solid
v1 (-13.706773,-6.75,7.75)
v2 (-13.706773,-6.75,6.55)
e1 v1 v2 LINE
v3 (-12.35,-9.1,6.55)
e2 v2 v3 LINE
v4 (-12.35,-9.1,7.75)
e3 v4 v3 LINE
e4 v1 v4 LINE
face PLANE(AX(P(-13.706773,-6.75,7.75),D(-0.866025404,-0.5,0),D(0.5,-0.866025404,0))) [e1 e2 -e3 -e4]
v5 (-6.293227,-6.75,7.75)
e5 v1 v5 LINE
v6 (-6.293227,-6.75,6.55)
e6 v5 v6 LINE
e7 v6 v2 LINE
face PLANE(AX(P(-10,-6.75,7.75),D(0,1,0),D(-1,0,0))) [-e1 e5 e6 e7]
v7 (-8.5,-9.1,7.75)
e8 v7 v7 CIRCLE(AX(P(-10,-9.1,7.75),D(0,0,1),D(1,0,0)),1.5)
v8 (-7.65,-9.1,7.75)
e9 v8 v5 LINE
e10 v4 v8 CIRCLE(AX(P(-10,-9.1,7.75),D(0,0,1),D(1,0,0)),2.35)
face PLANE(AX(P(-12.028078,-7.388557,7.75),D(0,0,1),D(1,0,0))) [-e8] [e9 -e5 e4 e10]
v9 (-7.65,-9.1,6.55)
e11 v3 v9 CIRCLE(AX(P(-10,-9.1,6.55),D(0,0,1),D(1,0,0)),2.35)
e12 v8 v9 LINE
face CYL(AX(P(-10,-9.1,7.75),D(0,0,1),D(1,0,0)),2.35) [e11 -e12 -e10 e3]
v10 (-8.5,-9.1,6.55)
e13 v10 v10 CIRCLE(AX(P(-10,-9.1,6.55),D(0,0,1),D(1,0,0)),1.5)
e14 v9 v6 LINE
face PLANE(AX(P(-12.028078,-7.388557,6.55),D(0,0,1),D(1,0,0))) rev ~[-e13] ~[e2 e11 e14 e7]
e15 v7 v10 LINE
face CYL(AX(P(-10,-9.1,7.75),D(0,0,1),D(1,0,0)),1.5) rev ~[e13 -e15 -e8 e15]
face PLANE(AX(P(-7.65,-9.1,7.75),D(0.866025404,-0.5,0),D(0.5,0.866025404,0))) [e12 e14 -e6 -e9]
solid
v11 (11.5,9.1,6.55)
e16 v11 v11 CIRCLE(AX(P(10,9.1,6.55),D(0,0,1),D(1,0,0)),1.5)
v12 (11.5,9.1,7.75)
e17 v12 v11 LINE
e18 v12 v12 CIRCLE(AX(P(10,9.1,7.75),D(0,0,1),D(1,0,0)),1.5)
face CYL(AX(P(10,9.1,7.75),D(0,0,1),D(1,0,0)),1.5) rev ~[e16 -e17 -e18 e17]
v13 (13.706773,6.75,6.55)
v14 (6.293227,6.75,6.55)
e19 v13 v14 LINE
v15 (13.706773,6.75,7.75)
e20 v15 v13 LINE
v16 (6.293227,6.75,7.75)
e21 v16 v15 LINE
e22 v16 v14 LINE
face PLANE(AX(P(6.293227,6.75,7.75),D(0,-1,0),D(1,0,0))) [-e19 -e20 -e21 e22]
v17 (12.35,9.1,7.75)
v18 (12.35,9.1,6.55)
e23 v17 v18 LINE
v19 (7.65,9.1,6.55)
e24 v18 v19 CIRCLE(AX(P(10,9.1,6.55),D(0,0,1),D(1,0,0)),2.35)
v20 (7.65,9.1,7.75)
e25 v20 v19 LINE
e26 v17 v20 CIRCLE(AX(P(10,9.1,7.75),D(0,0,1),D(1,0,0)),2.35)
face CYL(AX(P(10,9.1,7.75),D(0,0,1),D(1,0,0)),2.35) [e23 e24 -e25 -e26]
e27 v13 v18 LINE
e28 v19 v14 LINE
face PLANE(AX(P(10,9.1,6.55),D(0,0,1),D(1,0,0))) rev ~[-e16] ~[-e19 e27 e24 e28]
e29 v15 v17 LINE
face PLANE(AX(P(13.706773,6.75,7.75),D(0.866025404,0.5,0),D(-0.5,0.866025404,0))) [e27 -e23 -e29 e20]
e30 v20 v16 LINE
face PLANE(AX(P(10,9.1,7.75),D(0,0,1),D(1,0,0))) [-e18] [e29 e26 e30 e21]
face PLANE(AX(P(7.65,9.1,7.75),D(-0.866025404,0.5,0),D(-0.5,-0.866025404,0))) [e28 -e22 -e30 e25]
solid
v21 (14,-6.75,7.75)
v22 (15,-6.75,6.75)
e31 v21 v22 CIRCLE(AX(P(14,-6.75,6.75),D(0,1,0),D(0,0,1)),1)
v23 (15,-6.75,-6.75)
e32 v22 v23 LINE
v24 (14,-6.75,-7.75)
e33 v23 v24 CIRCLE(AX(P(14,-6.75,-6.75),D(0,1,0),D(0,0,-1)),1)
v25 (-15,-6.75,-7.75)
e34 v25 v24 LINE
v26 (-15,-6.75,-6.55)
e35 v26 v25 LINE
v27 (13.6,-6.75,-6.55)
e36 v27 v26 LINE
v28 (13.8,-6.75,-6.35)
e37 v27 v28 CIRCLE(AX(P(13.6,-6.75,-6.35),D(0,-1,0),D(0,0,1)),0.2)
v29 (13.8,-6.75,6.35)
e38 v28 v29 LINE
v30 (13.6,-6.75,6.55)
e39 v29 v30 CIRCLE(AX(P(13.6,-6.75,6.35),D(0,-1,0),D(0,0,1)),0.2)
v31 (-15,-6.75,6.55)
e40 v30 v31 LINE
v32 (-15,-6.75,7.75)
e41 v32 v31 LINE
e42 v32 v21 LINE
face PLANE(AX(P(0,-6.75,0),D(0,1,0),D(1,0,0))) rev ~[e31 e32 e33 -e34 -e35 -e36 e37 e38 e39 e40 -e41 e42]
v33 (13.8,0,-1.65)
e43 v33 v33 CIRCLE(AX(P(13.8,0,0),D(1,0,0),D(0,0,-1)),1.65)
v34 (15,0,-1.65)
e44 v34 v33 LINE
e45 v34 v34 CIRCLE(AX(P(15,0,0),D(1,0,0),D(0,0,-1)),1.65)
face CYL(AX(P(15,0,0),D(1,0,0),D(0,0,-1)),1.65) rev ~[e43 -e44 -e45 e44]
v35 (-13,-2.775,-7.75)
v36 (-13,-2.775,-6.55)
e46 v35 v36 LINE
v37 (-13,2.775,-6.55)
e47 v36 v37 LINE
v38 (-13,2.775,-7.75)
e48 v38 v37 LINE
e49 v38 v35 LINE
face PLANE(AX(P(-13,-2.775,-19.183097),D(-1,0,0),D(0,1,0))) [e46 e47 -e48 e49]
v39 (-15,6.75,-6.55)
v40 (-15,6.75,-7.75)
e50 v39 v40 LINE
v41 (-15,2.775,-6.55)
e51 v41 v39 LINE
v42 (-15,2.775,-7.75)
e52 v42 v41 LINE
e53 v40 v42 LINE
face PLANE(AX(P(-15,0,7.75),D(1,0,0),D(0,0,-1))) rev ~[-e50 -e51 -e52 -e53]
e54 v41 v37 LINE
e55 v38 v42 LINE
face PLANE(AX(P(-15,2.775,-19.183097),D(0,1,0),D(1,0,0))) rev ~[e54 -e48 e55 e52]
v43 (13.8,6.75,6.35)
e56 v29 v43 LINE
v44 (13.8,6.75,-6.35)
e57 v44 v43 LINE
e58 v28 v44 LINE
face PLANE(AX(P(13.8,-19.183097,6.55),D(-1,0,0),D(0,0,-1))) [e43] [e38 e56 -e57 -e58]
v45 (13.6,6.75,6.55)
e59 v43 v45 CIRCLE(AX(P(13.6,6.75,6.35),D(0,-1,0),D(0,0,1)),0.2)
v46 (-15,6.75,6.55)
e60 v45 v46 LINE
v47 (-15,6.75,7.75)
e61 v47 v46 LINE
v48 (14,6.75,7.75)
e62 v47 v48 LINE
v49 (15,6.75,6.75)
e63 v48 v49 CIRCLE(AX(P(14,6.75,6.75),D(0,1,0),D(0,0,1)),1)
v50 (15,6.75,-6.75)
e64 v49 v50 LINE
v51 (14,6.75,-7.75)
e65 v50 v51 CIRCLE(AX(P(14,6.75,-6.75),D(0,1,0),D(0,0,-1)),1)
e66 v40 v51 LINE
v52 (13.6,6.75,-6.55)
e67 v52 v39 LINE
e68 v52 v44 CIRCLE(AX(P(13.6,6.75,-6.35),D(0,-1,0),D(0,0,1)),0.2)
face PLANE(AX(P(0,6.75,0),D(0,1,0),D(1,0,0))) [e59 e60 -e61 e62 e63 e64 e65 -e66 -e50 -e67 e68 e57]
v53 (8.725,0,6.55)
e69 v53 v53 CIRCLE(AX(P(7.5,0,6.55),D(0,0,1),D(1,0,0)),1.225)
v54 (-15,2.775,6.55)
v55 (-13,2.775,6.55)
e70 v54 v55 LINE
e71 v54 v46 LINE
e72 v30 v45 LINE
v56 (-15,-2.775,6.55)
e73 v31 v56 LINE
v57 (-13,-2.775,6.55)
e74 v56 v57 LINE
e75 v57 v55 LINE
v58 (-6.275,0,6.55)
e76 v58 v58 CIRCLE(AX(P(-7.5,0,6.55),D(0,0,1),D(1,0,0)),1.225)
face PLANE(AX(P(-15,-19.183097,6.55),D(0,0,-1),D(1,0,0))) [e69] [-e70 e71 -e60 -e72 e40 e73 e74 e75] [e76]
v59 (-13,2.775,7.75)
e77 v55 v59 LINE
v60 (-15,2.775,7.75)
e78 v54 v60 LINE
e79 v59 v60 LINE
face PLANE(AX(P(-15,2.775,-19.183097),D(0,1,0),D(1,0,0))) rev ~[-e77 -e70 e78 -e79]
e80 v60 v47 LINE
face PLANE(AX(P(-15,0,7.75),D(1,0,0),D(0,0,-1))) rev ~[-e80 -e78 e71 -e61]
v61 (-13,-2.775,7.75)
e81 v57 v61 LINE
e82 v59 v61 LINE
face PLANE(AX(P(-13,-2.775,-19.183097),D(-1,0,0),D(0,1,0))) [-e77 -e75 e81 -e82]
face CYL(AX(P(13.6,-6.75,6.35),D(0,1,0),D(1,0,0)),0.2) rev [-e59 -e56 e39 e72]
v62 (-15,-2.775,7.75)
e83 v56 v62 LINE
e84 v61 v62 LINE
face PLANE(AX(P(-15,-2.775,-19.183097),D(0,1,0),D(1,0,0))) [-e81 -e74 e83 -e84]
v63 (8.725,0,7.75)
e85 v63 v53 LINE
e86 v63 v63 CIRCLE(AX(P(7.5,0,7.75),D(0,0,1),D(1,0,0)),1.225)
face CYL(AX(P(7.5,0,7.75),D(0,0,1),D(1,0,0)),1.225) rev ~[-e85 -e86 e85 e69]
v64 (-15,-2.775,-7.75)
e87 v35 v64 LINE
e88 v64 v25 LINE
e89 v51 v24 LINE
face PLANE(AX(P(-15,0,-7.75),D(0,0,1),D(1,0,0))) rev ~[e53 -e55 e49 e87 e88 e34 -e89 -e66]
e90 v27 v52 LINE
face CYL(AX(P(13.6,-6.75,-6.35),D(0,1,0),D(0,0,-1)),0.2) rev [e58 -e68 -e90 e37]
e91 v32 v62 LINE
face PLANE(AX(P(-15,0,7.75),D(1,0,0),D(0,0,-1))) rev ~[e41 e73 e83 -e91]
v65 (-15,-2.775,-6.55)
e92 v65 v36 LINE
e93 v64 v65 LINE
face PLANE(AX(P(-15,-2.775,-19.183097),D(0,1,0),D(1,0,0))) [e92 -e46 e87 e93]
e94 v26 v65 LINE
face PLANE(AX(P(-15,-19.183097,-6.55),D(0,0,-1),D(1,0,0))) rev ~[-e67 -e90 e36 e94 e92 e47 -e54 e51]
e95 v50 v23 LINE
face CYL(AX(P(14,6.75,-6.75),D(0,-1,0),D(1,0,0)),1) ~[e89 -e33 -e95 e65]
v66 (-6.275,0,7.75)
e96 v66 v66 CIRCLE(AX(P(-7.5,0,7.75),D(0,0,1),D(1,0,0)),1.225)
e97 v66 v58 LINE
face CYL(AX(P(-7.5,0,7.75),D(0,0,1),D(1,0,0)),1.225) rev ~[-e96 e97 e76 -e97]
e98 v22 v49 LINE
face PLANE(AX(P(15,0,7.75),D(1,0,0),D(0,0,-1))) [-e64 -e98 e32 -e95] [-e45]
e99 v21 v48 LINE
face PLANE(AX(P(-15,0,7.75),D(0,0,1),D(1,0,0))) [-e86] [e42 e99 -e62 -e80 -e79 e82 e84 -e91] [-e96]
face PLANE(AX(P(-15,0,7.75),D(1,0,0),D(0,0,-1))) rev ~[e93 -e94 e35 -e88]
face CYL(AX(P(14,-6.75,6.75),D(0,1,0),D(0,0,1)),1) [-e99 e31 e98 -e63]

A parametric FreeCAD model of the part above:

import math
import FreeCAD as App
import Part
import Sketcher
Q = App.Units.Quantity


def edges_at(feature, points):
    """Names of the edges that pass closest to the given points."""
    edges = feature.Shape.Edges
    near = lambda p: min(range(len(edges)), key=lambda i: edges[i].distToShape(Part.Vertex(*p))[0])
    return sorted({f"Edge{near(p) + 1}" for p in points})


def add_polygon(sketch, points):
    """Adds a closed chain of lines whose ends are joined by coincident constraints."""
    first, n = sketch.GeometryCount, len(points)
    for a, b in zip(points, points[1:] + points[:1]):
        sketch.addGeometry(Part.LineSegment(App.Vector(*a, 0), App.Vector(*b, 0)), False)
    for i in range(n):
        sketch.addConstraint(Sketcher.Constraint("Coincident", first + i, 2, first + (i + 1) % n, 1))

doc = App.newDocument("Part")
body = doc.addObject("PartDesign::Body", "Body")

# Sketch on XZ plane
sketch1 = body.newObject("Sketcher::SketchObject", "Sketch")
sketch1.AttachmentSupport = (doc.getObject("XZ_Plane"), [""])
sketch1.MapMode = "FlatFace"
add_polygon(sketch1, [(-15, -8), (-15, 8), (15, 8), (15, -8)])  # lines 0-3
sketch1.addConstraint([
    Sketcher.Constraint("Vertical", 0),
    Sketcher.Constraint("Horizontal", 1),
    Sketcher.Constraint("Vertical", 2),
    Sketcher.Constraint("Horizontal", 3),
    Sketcher.Constraint("Symmetric", 0, 2, 2, 2, -1, 1),
    Sketcher.Constraint("DistanceX", 1, 1, 1, 2, 30.0),
    Sketcher.Constraint("DistanceY", 0, 1, 0, 2, 15.5),
])
pad1 = body.newObject("PartDesign::Pad", "Pad")
pad1.Profile = sketch1
pad1.Length = 13.5
pad1.Midplane = True

# Sketch on XZ plane
sketch2 = body.newObject("Sketcher::SketchObject", "Sketch001")
sketch2.AttachmentSupport = (doc.getObject("XZ_Plane"), [""])
sketch2.MapMode = "FlatFace"
add_polygon(sketch2, [(-15, -7), (-15, 7), (14, 7), (14, -7)])  # lines 0-3
sketch2.addConstraint([
    Sketcher.Constraint("Vertical", 0),
    Sketcher.Constraint("Horizontal", 1),
    Sketcher.Constraint("Vertical", 2),
    Sketcher.Constraint("Horizontal", 3),
    Sketcher.Constraint("DistanceX", 1, 1, 1, 2, 28.8),
    Sketcher.Constraint("DistanceY", 0, 1, 0, 2, 13.1),
    Sketcher.Constraint("DistanceX", 0, 2, -1, 1, 15.0),
    Sketcher.Constraint("DistanceY", -1, 1, 0, 2, 6.55),
])
pocket1 = body.newObject("PartDesign::Pocket", "Pocket")
pocket1.Profile = sketch2
pocket1.Type = "ThroughAll"
pocket1.Midplane = True

# Sketch on YZ plane
sketch3 = body.newObject("Sketcher::SketchObject", "Sketch002")
sketch3.AttachmentSupport = (doc.getObject("YZ_Plane"), [""])
sketch3.MapMode = "FlatFace"
sketch3.AttachmentOffset = App.Placement(App.Vector(0, 0, 15), App.Rotation())
sketch3.addGeometry(Part.Circle(App.Vector(0, 0, 0), App.Vector(0, 0, 1), 1.6), False)
sketch3.addConstraint([
    Sketcher.Constraint("Coincident", 0, 3, -1, 1),
    Sketcher.Constraint("Diameter", 0, 3.3),
])
pocket2 = body.newObject("PartDesign::Pocket", "Pocket001")
pocket2.Profile = sketch3
pocket2.Type = "UpToFirst"
doc.recompute()

fillet = body.newObject("PartDesign::Fillet", "Fillet")
fillet.Base = (pocket2, edges_at(pocket2, [(15, 0, -7.75), (15, 0, 7.75)]))
fillet.Radius = 1
doc.recompute()

fillet2 = body.newObject("PartDesign::Fillet", "Fillet001")
fillet2.Base = (fillet, edges_at(fillet, [(13.8, 0, -6.55), (13.8, 0, 6.55)]))
fillet2.Radius = 0.2

# Sketch on XY plane
sketch4 = body.newObject("Sketcher::SketchObject", "Sketch003")
sketch4.AttachmentSupport = (doc.getObject("XY_Plane"), [""])
sketch4.MapMode = "FlatFace"
add_polygon(sketch4, [(-15, 2.8), (-15, -2.8), (-13, -2.8), (-13, 2.8)])  # lines 0-3
sketch4.addConstraint([
    Sketcher.Constraint("Vertical", 0),
    Sketcher.Constraint("Horizontal", 1),
    Sketcher.Constraint("Vertical", 2),
    Sketcher.Constraint("Horizontal", 3),
    Sketcher.Constraint("DistanceX", 1, 1, 1, 2, 2.0),
    Sketcher.Constraint("DistanceX", 0, 2, -1, 1, 15.0),
    Sketcher.Constraint("DistanceY", 0, 2, 0, 1, 5.55),
    Sketcher.Constraint("DistanceY", 0, 2, -1, 1, 2.775),
])
pocket3 = body.newObject("PartDesign::Pocket", "Pocket002")
pocket3.Profile = sketch4
pocket3.Type = "ThroughAll"
pocket3.Midplane = True

# Sketch on XY plane
sketch5 = body.newObject("Sketcher::SketchObject", "Sketch004")
sketch5.AttachmentSupport = (doc.getObject("XY_Plane"), [""])
sketch5.MapMode = "FlatFace"
sketch5.AttachmentOffset = App.Placement(App.Vector(0, 0, 7.75), App.Rotation())
sketch5.addGeometry(Part.Circle(App.Vector(-7.5, 0, 0), App.Vector(0, 0, 1), 1.2), False)
sketch5.addConstraint([
    Sketcher.Constraint("PointOnObject", 0, 3, -1),
    Sketcher.Constraint("Diameter", 0, 2.45),
    Sketcher.Constraint("DistanceX", 0, 3, -1, 1, 7.5),
])
pocket4 = body.newObject("PartDesign::Pocket", "Pocket003")
pocket4.Profile = sketch5
pocket4.Type = "UpToFirst"

# Sketch on XY plane
sketch6 = body.newObject("Sketcher::SketchObject", "Sketch005")
sketch6.AttachmentSupport = (doc.getObject("XY_Plane"), [""])
sketch6.MapMode = "FlatFace"
sketch6.AttachmentOffset = App.Placement(App.Vector(0, 0, 7.75), App.Rotation())
sketch6.addGeometry(Part.Circle(App.Vector(7.5, 0, 0), App.Vector(0, 0, 1), 1.2), False)
sketch6.addConstraint([
    Sketcher.Constraint("PointOnObject", 0, 3, -1),
    Sketcher.Constraint("Diameter", 0, 2.45),
    Sketcher.Constraint("DistanceX", -1, 1, 0, 3, 7.5),
])
pocket5 = body.newObject("PartDesign::Pocket", "Pocket004")
pocket5.Profile = sketch6
pocket5.Type = "UpToFirst"
body2 = doc.addObject("PartDesign::Body", "Body001")
body2.AllowCompound = True

# Sketch on XY plane
sketch7 = body2.newObject("Sketcher::SketchObject", "Sketch006")
sketch7.AttachmentSupport = (doc.getObject("XY_Plane001"), [""])
sketch7.MapMode = "FlatFace"
sketch7.AttachmentOffset = App.Placement(App.Vector(0, 0, 7.75), App.Rotation())
sketch7.addGeometry([
    Part.ArcOfCircle(Part.Circle(App.Vector(10, 9.1, 0), App.Vector(0, 0, 1), 2.4), math.radians(0), math.radians(180)),  # 0
    Part.LineSegment(App.Vector(7.7, 9.1, 0), App.Vector(6.3, 6.8, 0)),  # 1
    Part.LineSegment(App.Vector(6.3, 6.8, 0), App.Vector(13.7, 6.8, 0)),  # 2
    Part.LineSegment(App.Vector(13.7, 6.8, 0), App.Vector(12.3, 9.1, 0)),  # 3
    Part.Circle(App.Vector(10, 9.1, 0), App.Vector(0, 0, 1), 1.5),  # 4
    Part.LineSegment(App.Vector(-7.7, -9.1, 0), App.Vector(-6.3, -6.8, 0)),  # 5
    Part.LineSegment(App.Vector(-6.3, -6.8, 0), App.Vector(-13.7, -6.8, 0)),  # 6
    Part.LineSegment(App.Vector(-13.7, -6.8, 0), App.Vector(-12.3, -9.1, 0)),  # 7
    Part.ArcOfCircle(Part.Circle(App.Vector(-10, -9.1, 0), App.Vector(0, 0, 1), 2.4), math.radians(180), math.radians(360)),  # 8
    Part.Circle(App.Vector(-10, -9.1, 0), App.Vector(0, 0, 1), 1.5),  # 9
], False)
sketch7.addConstraint([
    Sketcher.Constraint("Coincident", 0, 2, 1, 1),
    Sketcher.Constraint("Coincident", 1, 2, 2, 1),
    Sketcher.Constraint("Coincident", 2, 2, 3, 1),
    Sketcher.Constraint("Coincident", 3, 2, 0, 1),
    Sketcher.Constraint("Coincident", 5, 2, 6, 1),
    Sketcher.Constraint("Coincident", 6, 2, 7, 1),
    Sketcher.Constraint("Coincident", 7, 2, 8, 1),
    Sketcher.Constraint("Coincident", 8, 2, 5, 1),
    Sketcher.Constraint("Horizontal", 2),
    Sketcher.Constraint("Horizontal", 6),
    Sketcher.Constraint("Coincident", 4, 3, 0, 3),
    Sketcher.Constraint("Coincident", 9, 3, 8, 3),
    Sketcher.Constraint("Equal", 0, 8),
    Sketcher.Constraint("Equal", 4, 9),
    Sketcher.Constraint("Symmetric", 0, 3, 8, 3, -1, 1),
    Sketcher.Constraint("Symmetric", 1, 2, 5, 2, -1, 1),
    Sketcher.Constraint("Parallel", 1, 5),
    Sketcher.Constraint("Parallel", 3, 7),
    Sketcher.Constraint("Horizontal", 4, 3, 0, 2),
    Sketcher.Constraint("Horizontal", 0, 2, 3, 2),
    Sketcher.Constraint("Horizontal", 9, 3, 7, 2),
    Sketcher.Constraint("Equal", 1, 3),
    Sketcher.Constraint("Diameter", 4, 3.0),
    Sketcher.Constraint("Angle", 1, Q("-120 deg")),
    Sketcher.Constraint("Radius", 0, 2.35),
    Sketcher.Constraint("DistanceX", -1, 1, 0, 3, 10.0),
    Sketcher.Constraint("DistanceY", -1, 1, 0, 3, 9.1),
    Sketcher.Constraint("DistanceY", 5, 2, 1, 2, 13.5),
])
pad2 = body2.newObject("PartDesign::Pad", "Pad001")
pad2.Profile = sketch7
pad2.Length = 1.2
pad2.Reversed = True

doc.recompute()
